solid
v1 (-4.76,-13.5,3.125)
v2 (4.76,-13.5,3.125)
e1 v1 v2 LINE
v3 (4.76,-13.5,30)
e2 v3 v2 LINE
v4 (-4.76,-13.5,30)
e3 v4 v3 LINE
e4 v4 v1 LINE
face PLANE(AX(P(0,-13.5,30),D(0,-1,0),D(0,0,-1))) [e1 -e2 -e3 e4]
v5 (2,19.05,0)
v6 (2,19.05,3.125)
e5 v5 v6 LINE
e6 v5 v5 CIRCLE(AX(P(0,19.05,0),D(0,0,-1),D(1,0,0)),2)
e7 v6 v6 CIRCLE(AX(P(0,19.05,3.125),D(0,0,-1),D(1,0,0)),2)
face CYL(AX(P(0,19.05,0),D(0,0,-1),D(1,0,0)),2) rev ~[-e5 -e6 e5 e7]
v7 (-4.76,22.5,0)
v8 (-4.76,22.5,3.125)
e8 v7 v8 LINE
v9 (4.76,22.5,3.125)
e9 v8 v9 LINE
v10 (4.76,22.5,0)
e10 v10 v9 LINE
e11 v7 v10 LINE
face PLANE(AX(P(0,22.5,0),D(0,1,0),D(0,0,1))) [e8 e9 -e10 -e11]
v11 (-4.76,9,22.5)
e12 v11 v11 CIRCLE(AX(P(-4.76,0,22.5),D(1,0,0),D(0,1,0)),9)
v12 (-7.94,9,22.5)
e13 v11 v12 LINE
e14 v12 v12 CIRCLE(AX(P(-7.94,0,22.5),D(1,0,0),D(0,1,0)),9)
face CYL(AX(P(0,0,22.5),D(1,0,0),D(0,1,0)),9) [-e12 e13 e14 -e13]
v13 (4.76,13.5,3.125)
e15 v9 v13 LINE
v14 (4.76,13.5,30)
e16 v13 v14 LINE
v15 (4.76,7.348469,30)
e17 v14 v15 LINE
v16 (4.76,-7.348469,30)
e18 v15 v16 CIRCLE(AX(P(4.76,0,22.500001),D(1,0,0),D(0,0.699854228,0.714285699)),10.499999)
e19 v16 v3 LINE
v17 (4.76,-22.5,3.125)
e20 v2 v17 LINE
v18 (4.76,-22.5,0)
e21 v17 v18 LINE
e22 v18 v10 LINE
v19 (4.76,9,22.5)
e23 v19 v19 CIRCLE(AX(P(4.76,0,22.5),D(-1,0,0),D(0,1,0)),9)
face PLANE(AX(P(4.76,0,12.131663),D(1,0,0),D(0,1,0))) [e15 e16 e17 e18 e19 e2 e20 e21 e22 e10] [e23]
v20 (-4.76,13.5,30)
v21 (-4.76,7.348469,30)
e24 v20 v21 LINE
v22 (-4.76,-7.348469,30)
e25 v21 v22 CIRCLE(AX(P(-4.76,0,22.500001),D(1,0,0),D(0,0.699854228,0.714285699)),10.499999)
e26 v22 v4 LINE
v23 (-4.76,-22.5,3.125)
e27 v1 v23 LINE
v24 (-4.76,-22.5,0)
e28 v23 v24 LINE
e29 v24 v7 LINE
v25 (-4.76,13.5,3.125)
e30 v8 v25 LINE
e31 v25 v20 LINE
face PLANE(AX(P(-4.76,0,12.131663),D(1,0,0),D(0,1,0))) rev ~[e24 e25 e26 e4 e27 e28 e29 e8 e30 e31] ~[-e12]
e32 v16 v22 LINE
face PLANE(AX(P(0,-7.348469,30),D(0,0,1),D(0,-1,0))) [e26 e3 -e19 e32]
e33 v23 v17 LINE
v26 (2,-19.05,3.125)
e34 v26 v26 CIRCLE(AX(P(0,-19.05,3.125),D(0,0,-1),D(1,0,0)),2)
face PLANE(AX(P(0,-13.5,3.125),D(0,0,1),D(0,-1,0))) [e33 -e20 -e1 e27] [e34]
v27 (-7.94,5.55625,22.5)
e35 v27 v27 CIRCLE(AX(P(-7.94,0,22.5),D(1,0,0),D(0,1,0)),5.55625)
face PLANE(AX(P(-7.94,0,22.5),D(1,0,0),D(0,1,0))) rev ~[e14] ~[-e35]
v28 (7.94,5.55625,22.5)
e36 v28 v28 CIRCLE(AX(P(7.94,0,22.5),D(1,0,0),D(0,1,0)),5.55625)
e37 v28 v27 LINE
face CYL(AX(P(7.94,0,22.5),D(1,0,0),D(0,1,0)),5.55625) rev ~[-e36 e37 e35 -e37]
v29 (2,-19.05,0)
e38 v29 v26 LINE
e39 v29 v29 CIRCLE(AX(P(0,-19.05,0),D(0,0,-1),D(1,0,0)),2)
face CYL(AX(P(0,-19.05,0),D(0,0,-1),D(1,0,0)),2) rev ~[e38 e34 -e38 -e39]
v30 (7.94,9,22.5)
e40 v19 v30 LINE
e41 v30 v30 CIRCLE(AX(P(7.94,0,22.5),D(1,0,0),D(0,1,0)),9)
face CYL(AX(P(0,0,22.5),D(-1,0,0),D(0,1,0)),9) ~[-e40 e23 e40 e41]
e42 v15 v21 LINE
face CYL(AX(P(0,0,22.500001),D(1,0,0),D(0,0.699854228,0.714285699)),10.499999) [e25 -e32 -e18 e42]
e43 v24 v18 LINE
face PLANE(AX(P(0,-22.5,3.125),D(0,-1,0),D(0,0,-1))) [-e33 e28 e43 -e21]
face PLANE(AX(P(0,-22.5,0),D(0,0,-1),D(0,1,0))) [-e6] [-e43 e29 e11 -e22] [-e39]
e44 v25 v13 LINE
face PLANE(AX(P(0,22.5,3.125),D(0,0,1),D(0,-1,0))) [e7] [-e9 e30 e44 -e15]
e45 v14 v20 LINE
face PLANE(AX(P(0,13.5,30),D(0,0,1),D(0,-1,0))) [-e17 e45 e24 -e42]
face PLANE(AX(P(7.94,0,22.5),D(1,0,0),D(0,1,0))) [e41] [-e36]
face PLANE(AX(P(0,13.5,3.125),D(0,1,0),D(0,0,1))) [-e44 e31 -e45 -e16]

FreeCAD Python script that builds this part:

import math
import FreeCAD as App
import Part
import Sketcher

V = App.Vector
Q = App.Units.Quantity

doc = App.newDocument("Part")
body = doc.addObject("PartDesign::Body", "Body")

# Sketch on YZ plane
sketch1 = body.newObject("Sketcher::SketchObject", "Sketch")
sketch1.AttachmentSupport = (doc.getObject("YZ_Plane"), [""])
sketch1.MapMode = "FlatFace"
sketch1.addGeometry([
    Part.LineSegment(V(-7.3, 30, 0), V(-13.5, 30, 0)),  # 0
    Part.LineSegment(V(-13.5, 30, 0), V(-13.5, 3.1, 0)),  # 1
    Part.LineSegment(V(-13.5, 3.1, 0), V(-22.5, 3.1, 0)),  # 2
    Part.LineSegment(V(-22.5, 3.1, 0), V(-22.5, 0, 0)),  # 3
    Part.LineSegment(V(-22.5, 0, 0), V(22.5, 0, 0)),  # 4
    Part.LineSegment(V(22.5, 0, 0), V(22.5, 3.1, 0)),  # 5
    Part.LineSegment(V(22.5, 3.1, 0), V(13.5, 3.1, 0)),  # 6
    Part.LineSegment(V(13.5, 3.1, 0), V(13.5, 30, 0)),  # 7
    Part.LineSegment(V(13.5, 30, 0), V(7.3, 30, 0)),  # 8
    Part.ArcOfCircle(Part.Circle(V(0, 22.5, 0), V(0, 0, 1), 10.5), math.radians(46), math.radians(134)),  # 9
], False)
sketch1.addConstraint([
    Sketcher.Constraint("Coincident", 0, 2, 1, 1),
    Sketcher.Constraint("Coincident", 1, 2, 2, 1),
    Sketcher.Constraint("Coincident", 2, 2, 3, 1),
    Sketcher.Constraint("Coincident", 3, 2, 4, 1),
    Sketcher.Constraint("Coincident", 4, 2, 5, 1),
    Sketcher.Constraint("Coincident", 5, 2, 6, 1),
    Sketcher.Constraint("Coincident", 6, 2, 7, 1),
    Sketcher.Constraint("Coincident", 7, 2, 8, 1),
    Sketcher.Constraint("Coincident", 8, 2, 9, 1),
    Sketcher.Constraint("Coincident", 9, 2, 0, 1),
    Sketcher.Constraint("Horizontal", 0),
    Sketcher.Constraint("Vertical", 1),
    Sketcher.Constraint("Horizontal", 2),
    Sketcher.Constraint("Vertical", 3),
    Sketcher.Constraint("Horizontal", 4),
    Sketcher.Constraint("Vertical", 5),
    Sketcher.Constraint("Horizontal", 6),
    Sketcher.Constraint("Vertical", 7),
    Sketcher.Constraint("Horizontal", 8),
    Sketcher.Constraint("Symmetric", 3, 2, 4, 2, -1, 1),
    Sketcher.Constraint("Symmetric", 1, 2, 6, 2, -2),
    Sketcher.Constraint("Symmetric", 8, 2, 9, 2, -2),
    Sketcher.Constraint("Radius", 9, Q("10.499999 mm")),
    Sketcher.Constraint("DistanceX", 2, 2, 2, 1, Q("9 mm")),
    Sketcher.Constraint("DistanceX", 4, 1, 4, 2, Q("45 mm")),
    Sketcher.Constraint("DistanceY", -1, 1, 0, 2, Q("30 mm")),
    Sketcher.Constraint("DistanceY", -1, 1, 9, 3, Q("22.500001 mm")),
    Sketcher.Constraint("DistanceY", 1, 2, 1, 1, Q("26.875 mm")),
])
pad1 = body.newObject("PartDesign::Pad", "Pad")
pad1.Profile = sketch1
pad1.Type = "TwoLengths"
pad1.Length = 4.76
pad1.Length2 = 4.76

# Sketch on YZ plane
sketch2 = body.newObject("Sketcher::SketchObject", "Sketch001")
sketch2.AttachmentSupport = (doc.getObject("YZ_Plane"), [""])
sketch2.MapMode = "FlatFace"
sketch2.addGeometry(Part.Circle(V(0, 22, 0), V(0, 0, 1), 9), False)
sketch2.addConstraint([
    Sketcher.Constraint("PointOnObject", 0, 3, -2),
    Sketcher.Constraint("Diameter", 0, Q("18 mm")),
    Sketcher.Constraint("DistanceY", -1, 1, 0, 3, Q("22.5 mm")),
])
pad2 = body.newObject("PartDesign::Pad", "Pad001")
pad2.Profile = sketch2
pad2.Type = "TwoLengths"
pad2.Length = 7.94
pad2.Length2 = 7.94

# Sketch on YZ plane
sketch3 = body.newObject("Sketcher::SketchObject", "Sketch002")
sketch3.AttachmentSupport = (doc.getObject("YZ_Plane"), [""])
sketch3.MapMode = "FlatFace"
sketch3.AttachmentOffset = App.Placement(V(0, 0, 7.94), App.Rotation())
sketch3.addGeometry(Part.Circle(V(0, 22, 0), V(0, 0, 1), 6), False)
sketch3.addConstraint([
    Sketcher.Constraint("PointOnObject", 0, 3, -2),
    Sketcher.Constraint("Diameter", 0, Q("11.1125 mm")),
    Sketcher.Constraint("DistanceY", -1, 1, 0, 3, Q("22.5 mm")),
])
pocket1 = body.newObject("PartDesign::Pocket", "Pocket")
pocket1.Profile = sketch3
pocket1.Type = "ThroughAll"

# Sketch on XY plane
sketch4 = body.newObject("Sketcher::SketchObject", "Sketch003")
sketch4.AttachmentSupport = (doc.getObject("XY_Plane"), [""])
sketch4.MapMode = "FlatFace"
sketch4.addGeometry([
    Part.Circle(V(0, -19.1, 0), V(0, 0, 1), 2),
    Part.Circle(V(0, 19.1, 0), V(0, 0, 1), 2),
], False)
sketch4.addConstraint([
    Sketcher.Constraint("Equal", 0, 1),
    Sketcher.Constraint("Symmetric", 0, 3, 1, 3, -1, 1),
    Sketcher.Constraint("PointOnObject", 0, 3, -2),
    Sketcher.Constraint("Diameter", 0, Q("4 mm")),
    Sketcher.Constraint("DistanceY", 0, 3, 1, 3, Q("38.1 mm")),
])
pocket2 = body.newObject("PartDesign::Pocket", "Pocket001")
pocket2.Profile = sketch4
pocket2.Type = "ThroughAll"
pocket2.Reversed = True

doc.recompute()
